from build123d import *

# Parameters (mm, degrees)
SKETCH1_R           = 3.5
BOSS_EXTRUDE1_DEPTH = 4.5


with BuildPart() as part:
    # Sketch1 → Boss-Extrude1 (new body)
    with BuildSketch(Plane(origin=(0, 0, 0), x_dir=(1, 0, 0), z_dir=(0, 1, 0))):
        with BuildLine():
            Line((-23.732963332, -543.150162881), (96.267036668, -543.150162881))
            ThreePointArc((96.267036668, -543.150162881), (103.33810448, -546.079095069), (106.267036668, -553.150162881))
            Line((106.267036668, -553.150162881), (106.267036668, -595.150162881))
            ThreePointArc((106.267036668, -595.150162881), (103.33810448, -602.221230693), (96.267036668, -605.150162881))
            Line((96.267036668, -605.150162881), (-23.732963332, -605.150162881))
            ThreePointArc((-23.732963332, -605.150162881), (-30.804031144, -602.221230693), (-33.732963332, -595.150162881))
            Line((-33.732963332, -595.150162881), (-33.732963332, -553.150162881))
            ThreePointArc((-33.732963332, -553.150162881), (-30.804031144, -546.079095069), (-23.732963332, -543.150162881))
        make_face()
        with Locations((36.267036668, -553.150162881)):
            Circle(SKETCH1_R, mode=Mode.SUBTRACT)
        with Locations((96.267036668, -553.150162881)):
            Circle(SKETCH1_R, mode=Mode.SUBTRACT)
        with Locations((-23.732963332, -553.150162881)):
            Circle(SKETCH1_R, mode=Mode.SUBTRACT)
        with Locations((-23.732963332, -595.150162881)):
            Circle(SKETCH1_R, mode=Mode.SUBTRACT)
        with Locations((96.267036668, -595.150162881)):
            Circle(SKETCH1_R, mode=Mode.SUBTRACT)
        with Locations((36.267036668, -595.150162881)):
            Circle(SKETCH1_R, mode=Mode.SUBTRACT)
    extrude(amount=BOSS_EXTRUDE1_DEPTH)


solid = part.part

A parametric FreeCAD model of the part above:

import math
import FreeCAD as App
import Part
import Sketcher
Q = App.Units.Quantity

doc = App.newDocument("Part")
body = doc.addObject("PartDesign::Body", "Body")

# Sketch on XZ plane
sketch1 = body.newObject("Sketcher::SketchObject", "Sketch")
sketch1.AttachmentSupport = (doc.getObject("XZ_Plane"), [""])
sketch1.MapMode = "FlatFace"
sketch1.addGeometry(Part.LineSegment(App.Vector(96.3, 543.2, 0), App.Vector(-23.7, 543.2, 0)), False)
sketch1.addGeometry(Part.ArcOfCircle(Part.Circle(App.Vector(-23.7, 553.2, 0), App.Vector(0, 0, 1), 10), math.radians(180), math.radians(270)), False)
sketch1.addGeometry(Part.LineSegment(App.Vector(-33.7, 553.2, 0), App.Vector(-33.7, 595.2, 0)), False)
sketch1.addGeometry(Part.ArcOfCircle(Part.Circle(App.Vector(-23.7, 595.2, 0), App.Vector(0, 0, 1), 10), math.radians(90), math.radians(180)), False)
sketch1.addGeometry(Part.LineSegment(App.Vector(-23.7, 605.2, 0), App.Vector(96.3, 605.2, 0)), False)
sketch1.addGeometry(Part.ArcOfCircle(Part.Circle(App.Vector(96.3, 595.2, 0), App.Vector(0, 0, 1), 10), math.radians(0), math.radians(90)), False)
sketch1.addGeometry(Part.LineSegment(App.Vector(106.3, 595.2, 0), App.Vector(106.3, 553.2, 0)), False)
sketch1.addGeometry(Part.ArcOfCircle(Part.Circle(App.Vector(96.3, 553.2, 0), App.Vector(0, 0, 1), 10), math.radians(-90), math.radians(0)), False)
sketch1.addGeometry(Part.Circle(App.Vector(96.3, 595.2, 0), App.Vector(0, 0, 1), 3.5), False)
sketch1.addGeometry(Part.Circle(App.Vector(36.3, 595.2, 0), App.Vector(0, 0, 1), 3.5), False)
sketch1.addGeometry(Part.Circle(App.Vector(-23.7, 595.2, 0), App.Vector(0, 0, 1), 3.5), False)
sketch1.addGeometry(Part.Circle(App.Vector(96.3, 553.2, 0), App.Vector(0, 0, 1), 3.5), False)
sketch1.addGeometry(Part.Circle(App.Vector(36.3, 553.2, 0), App.Vector(0, 0, 1), 3.5), False)
sketch1.addGeometry(Part.Circle(App.Vector(-23.7, 553.2, 0), App.Vector(0, 0, 1), 3.5), False)
sketch1.addConstraint(Sketcher.Constraint("Tangent", 0, 2, 1, 2))
sketch1.addConstraint(Sketcher.Constraint("Tangent", 1, 1, 2, 1))
sketch1.addConstraint(Sketcher.Constraint("Tangent", 2, 2, 3, 2))
sketch1.addConstraint(Sketcher.Constraint("Tangent", 3, 1, 4, 1))
sketch1.addConstraint(Sketcher.Constraint("Tangent", 4, 2, 5, 2))
sketch1.addConstraint(Sketcher.Constraint("Tangent", 5, 1, 6, 1))
sketch1.addConstraint(Sketcher.Constraint("Tangent", 6, 2, 7, 2))
sketch1.addConstraint(Sketcher.Constraint("Tangent", 7, 1, 0, 1))
sketch1.addConstraint(Sketcher.Constraint("Horizontal", 0))
sketch1.addConstraint(Sketcher.Constraint("Vertical", 2))
sketch1.addConstraint(Sketcher.Constraint("Horizontal", 4))
sketch1.addConstraint(Sketcher.Constraint("Vertical", 6))
sketch1.addConstraint(Sketcher.Constraint("Coincident", 8, 3, 5, 3))
sketch1.addConstraint(Sketcher.Constraint("Coincident", 10, 3, 3, 3))
sketch1.addConstraint(Sketcher.Constraint("Coincident", 11, 3, 7, 3))
sketch1.addConstraint(Sketcher.Constraint("Coincident", 13, 3, 1, 3))
sketch1.addConstraint(Sketcher.Constraint("Equal", 1, 3))
sketch1.addConstraint(Sketcher.Constraint("Equal", 3, 5))
sketch1.addConstraint(Sketcher.Constraint("Equal", 5, 7))
sketch1.addConstraint(Sketcher.Constraint("Equal", 8, 9))
sketch1.addConstraint(Sketcher.Constraint("Equal", 9, 10))
sketch1.addConstraint(Sketcher.Constraint("Equal", 10, 11))
sketch1.addConstraint(Sketcher.Constraint("Equal", 11, 12))
sketch1.addConstraint(Sketcher.Constraint("Equal", 12, 13))
sketch1.addConstraint(Sketcher.Constraint("Horizontal", 8, 3, 9, 3))
sketch1.addConstraint(Sketcher.Constraint("Horizontal", 11, 3, 12, 3))
sketch1.addConstraint(Sketcher.Constraint("Vertical", 9, 3, 12, 3))
sketch1.addConstraint(Sketcher.Constraint("Diameter", 8, Q("7 mm")))
sketch1.addConstraint(Sketcher.Constraint("Radius", 1, Q("10 mm")))
sketch1.addConstraint(Sketcher.Constraint("DistanceX", 0, 2, 0, 1, Q("120 mm")))
sketch1.addConstraint(Sketcher.Constraint("DistanceY", 2, 1, 2, 2, Q("42 mm")))
sketch1.addConstraint(Sketcher.Constraint("DistanceX", 3, 3, 9, 3, Q("60 mm")))
sketch1.addConstraint(Sketcher.Constraint("DistanceX", 1, 3, -1, 1, Q("23.732963 mm")))
sketch1.addConstraint(Sketcher.Constraint("DistanceY", -1, 1, 1, 3, Q("553.150163 mm")))
pad1 = body.newObject("PartDesign::Pad", "Pad")
pad1.Profile = sketch1
pad1.Length = 4.5
pad1.Reversed = True

doc.recompute()
